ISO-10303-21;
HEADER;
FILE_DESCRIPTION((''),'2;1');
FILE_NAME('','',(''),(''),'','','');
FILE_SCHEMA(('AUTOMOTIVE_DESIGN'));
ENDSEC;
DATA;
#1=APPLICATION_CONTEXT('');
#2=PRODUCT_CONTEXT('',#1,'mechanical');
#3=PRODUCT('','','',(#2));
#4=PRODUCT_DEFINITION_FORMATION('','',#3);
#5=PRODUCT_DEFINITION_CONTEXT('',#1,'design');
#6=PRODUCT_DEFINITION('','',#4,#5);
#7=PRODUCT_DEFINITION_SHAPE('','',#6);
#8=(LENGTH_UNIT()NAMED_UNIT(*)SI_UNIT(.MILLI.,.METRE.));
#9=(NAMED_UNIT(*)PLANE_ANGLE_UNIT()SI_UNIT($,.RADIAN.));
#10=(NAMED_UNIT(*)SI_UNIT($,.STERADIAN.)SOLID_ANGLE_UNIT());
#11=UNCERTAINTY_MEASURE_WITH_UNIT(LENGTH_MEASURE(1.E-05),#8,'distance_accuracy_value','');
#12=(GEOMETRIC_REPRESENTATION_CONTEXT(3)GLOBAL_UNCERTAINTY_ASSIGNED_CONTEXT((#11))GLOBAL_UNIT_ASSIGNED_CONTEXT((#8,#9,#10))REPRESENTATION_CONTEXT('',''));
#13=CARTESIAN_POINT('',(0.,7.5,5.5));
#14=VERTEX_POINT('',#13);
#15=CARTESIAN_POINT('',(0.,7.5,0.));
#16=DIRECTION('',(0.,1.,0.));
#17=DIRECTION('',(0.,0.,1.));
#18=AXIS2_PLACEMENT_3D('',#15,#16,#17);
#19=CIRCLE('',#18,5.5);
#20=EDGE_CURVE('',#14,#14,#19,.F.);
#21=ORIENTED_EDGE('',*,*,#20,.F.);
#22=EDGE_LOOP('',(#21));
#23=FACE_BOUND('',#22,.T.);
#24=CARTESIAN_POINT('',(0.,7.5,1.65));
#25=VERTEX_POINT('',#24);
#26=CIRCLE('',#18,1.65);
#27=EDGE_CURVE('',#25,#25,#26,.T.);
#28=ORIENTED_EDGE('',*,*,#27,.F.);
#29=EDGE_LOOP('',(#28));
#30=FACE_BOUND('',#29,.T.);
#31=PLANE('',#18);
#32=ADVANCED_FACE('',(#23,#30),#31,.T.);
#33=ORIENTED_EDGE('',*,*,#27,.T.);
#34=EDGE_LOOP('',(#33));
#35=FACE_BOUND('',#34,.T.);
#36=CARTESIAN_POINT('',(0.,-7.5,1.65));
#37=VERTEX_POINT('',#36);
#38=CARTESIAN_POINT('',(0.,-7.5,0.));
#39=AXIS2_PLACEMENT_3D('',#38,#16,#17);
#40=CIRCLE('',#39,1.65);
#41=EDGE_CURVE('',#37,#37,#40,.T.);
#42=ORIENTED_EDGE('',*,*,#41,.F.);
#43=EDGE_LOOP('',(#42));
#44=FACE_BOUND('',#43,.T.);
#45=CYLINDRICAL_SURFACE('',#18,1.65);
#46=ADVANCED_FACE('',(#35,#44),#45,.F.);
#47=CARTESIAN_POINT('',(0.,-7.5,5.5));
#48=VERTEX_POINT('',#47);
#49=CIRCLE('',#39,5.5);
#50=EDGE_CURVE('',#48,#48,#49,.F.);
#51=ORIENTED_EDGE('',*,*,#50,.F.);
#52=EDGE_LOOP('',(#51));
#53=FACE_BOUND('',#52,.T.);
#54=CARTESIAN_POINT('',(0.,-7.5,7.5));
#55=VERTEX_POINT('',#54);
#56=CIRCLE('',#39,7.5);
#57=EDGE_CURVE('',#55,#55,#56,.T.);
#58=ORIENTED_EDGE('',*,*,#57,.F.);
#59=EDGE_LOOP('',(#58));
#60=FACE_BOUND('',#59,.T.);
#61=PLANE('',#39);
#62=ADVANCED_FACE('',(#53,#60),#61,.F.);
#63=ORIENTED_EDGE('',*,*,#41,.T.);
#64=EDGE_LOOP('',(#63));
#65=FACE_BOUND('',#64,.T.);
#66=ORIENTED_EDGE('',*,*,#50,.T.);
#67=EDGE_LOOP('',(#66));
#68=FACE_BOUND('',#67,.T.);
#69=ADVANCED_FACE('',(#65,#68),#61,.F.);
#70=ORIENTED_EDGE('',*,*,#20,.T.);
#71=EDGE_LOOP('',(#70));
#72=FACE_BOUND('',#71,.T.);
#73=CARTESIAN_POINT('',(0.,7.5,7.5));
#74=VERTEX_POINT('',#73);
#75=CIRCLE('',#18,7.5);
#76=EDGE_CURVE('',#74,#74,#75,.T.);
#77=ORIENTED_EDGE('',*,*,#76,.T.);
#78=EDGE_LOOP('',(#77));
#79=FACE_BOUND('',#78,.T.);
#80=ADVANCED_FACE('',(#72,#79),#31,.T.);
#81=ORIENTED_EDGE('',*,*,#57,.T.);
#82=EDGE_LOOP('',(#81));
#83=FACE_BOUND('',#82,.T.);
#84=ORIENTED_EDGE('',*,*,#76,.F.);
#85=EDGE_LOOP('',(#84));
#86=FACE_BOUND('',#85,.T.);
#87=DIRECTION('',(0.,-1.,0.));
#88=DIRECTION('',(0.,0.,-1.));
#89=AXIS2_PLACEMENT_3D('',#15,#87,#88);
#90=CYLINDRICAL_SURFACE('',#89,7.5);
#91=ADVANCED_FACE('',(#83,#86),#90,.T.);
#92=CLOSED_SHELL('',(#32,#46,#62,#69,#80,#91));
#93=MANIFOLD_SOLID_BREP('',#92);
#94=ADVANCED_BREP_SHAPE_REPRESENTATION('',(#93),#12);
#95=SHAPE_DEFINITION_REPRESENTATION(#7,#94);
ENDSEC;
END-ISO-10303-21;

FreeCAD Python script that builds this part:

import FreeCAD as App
import Part
import Sketcher
from FreeCAD import Vector
Q = App.Units.Quantity

doc = App.newDocument("Part")
body = doc.addObject("PartDesign::Body", "Body")

# Sketch on XZ plane
sketch1 = body.newObject("Sketcher::SketchObject", "Sketch")
sketch1.AttachmentSupport = (doc.getObject("XZ_Plane"), [""])
sketch1.MapMode = "FlatFace"
sketch1.addGeometry(Part.Circle(Vector(0, 0, 0), Vector(0, 0, 1), 8), False)
sketch1.addConstraint([
    Sketcher.Constraint("Coincident", 0, 3, -1, 1),
    Sketcher.Constraint("Diameter", 0, Q("15 mm")),
])
pad1 = body.newObject("PartDesign::Pad", "Pad")
pad1.Profile = sketch1
pad1.Length = 15
pad1.Midplane = True

# Sketch on XZ plane
sketch2 = body.newObject("Sketcher::SketchObject", "Sketch001")
sketch2.AttachmentSupport = (doc.getObject("XZ_Plane"), [""])
sketch2.MapMode = "FlatFace"
sketch2.AttachmentOffset = App.Placement(Vector(0, 0, -7.5), App.Rotation())
sketch2.addGeometry(Part.Circle(Vector(0, 0, 0), Vector(0, 0, 1), 1.6), False)
sketch2.addConstraint([
    Sketcher.Constraint("Coincident", 0, 3, -1, 1),
    Sketcher.Constraint("Diameter", 0, Q("3.3 mm")),
])
doc.recompute()
hole = body.newObject("PartDesign::Hole", "Hole")
hole.Profile = sketch2
hole.ThreadType = "None"
hole.Diameter = 3.3
hole.DepthType = "Dimension"
hole.Depth = 21.5
hole.DrillPoint = "Angled"
hole.DrillPointAngle = 118
hole.Reversed = True

doc.recompute()
